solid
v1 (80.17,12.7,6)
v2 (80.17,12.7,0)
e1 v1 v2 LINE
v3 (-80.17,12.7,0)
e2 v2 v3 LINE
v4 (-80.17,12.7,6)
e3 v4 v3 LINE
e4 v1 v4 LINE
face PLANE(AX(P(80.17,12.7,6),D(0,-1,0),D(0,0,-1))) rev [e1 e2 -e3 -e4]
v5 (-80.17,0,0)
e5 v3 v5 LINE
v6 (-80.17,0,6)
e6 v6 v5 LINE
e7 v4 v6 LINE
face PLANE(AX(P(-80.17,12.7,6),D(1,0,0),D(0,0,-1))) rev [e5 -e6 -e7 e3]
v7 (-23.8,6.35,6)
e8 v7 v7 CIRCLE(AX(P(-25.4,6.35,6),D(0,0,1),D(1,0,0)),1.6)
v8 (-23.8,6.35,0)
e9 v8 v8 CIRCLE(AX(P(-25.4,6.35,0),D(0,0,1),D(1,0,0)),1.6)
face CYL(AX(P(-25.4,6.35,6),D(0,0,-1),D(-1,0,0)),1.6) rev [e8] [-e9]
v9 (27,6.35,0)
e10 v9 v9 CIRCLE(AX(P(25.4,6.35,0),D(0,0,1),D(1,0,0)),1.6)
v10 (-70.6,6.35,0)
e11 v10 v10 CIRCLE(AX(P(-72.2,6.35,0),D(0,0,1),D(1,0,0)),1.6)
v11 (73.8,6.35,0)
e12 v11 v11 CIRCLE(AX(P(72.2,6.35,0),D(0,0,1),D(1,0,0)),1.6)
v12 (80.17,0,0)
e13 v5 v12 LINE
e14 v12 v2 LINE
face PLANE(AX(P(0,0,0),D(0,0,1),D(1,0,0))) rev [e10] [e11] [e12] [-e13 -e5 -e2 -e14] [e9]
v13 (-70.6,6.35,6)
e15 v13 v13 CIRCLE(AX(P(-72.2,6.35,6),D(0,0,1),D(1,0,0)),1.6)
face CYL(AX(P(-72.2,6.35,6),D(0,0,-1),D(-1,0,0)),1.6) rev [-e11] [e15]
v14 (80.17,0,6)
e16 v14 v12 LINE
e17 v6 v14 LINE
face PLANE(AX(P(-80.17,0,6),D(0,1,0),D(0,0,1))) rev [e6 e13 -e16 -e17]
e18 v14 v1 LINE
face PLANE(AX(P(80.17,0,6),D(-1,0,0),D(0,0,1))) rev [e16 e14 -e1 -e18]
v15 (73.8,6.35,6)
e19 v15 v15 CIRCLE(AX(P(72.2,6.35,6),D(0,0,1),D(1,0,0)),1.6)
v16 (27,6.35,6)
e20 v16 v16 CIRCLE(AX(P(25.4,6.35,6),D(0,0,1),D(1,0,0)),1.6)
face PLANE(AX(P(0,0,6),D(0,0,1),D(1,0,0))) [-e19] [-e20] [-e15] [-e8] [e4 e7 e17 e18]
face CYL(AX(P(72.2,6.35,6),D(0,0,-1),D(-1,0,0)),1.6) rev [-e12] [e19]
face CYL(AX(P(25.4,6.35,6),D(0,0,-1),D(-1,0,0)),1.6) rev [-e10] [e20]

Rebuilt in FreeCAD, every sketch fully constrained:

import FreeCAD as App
import Part
import Sketcher
from FreeCAD import Vector

doc = App.newDocument("Part")
params = doc.addObject("Spreadsheet::Sheet", "Params")
for row, (alias, value) in enumerate([
    ("sketch1_diameter", "3.2 mm"),
    ("sketch1_height", "12.7 mm"),
    ("sketch1_width", "160.34 mm"),
    ("pad1_length", "6 mm"),
], start=1):
    params.set(f"A{row}", alias)
    params.set(f"B{row}", "=" + value)
    params.setAlias(f"B{row}", alias)

body = doc.addObject("PartDesign::Body", "Body")

# Sketch on XY plane
sketch1 = body.newObject("Sketcher::SketchObject", "Sketch")
sketch1.AttachmentSupport = (doc.getObject("XY_Plane"), [""])
sketch1.MapMode = "FlatFace"
sketch1.addGeometry(Part.LineSegment(Vector(-80.2, 12.7, 0), Vector(-80.2, 0, 0)), False)
sketch1.addGeometry(Part.LineSegment(Vector(-80.2, 0, 0), Vector(80.2, 0, 0)), False)
sketch1.addGeometry(Part.LineSegment(Vector(80.2, 0, 0), Vector(80.2, 12.7, 0)), False)
sketch1.addGeometry(Part.LineSegment(Vector(80.2, 12.7, 0), Vector(-80.2, 12.7, 0)), False)
sketch1.addGeometry(Part.Circle(Vector(-72.2, 6.3, 0), Vector(0, 0, 1), 1.6), False)
sketch1.addGeometry(Part.Circle(Vector(-25.4, 6.3, 0), Vector(0, 0, 1), 1.6), False)
sketch1.addGeometry(Part.Circle(Vector(25.4, 6.3, 0), Vector(0, 0, 1), 1.6), False)
sketch1.addGeometry(Part.Circle(Vector(72.2, 6.3, 0), Vector(0, 0, 1), 1.6), False)
sketch1.addConstraint(Sketcher.Constraint("Coincident", 0, 2, 1, 1))
sketch1.addConstraint(Sketcher.Constraint("Coincident", 1, 2, 2, 1))
sketch1.addConstraint(Sketcher.Constraint("Coincident", 2, 2, 3, 1))
sketch1.addConstraint(Sketcher.Constraint("Coincident", 3, 2, 0, 1))
sketch1.addConstraint(Sketcher.Constraint("Vertical", 0))
sketch1.addConstraint(Sketcher.Constraint("Horizontal", 1))
sketch1.addConstraint(Sketcher.Constraint("Vertical", 2))
sketch1.addConstraint(Sketcher.Constraint("Horizontal", 3))
sketch1.addConstraint(Sketcher.Constraint("Equal", 4, 5))
sketch1.addConstraint(Sketcher.Constraint("Equal", 5, 6))
sketch1.addConstraint(Sketcher.Constraint("Equal", 6, 7))
sketch1.addConstraint(Sketcher.Constraint("Symmetric", 0, 2, 1, 2, -1, 1))
sketch1.addConstraint(Sketcher.Constraint("Symmetric", 5, 3, 6, 3, -2))
sketch1.addConstraint(Sketcher.Constraint("Symmetric", 4, 3, 7, 3, -2))
sketch1.addConstraint(Sketcher.Constraint("Horizontal", 4, 3, 5, 3))
sketch1.addConstraint(Sketcher.Constraint("Diameter", 4, 3.2))
sketch1.addConstraint(Sketcher.Constraint("DistanceY", 0, 2, 0, 1, 12.7))
sketch1.addConstraint(Sketcher.Constraint("DistanceX", 1, 1, 1, 2, 160.34))
sketch1.addConstraint(Sketcher.Constraint("DistanceX", 4, 3, -1, 1, 72.2))
sketch1.addConstraint(Sketcher.Constraint("DistanceX", 5, 3, -1, 1, 25.4))
sketch1.addConstraint(Sketcher.Constraint("DistanceY", -1, 1, 4, 3, 6.35))
sketch1.setExpression("Constraints[15]", "Params.sketch1_diameter")
sketch1.setExpression("Constraints[16]", "Params.sketch1_height")
sketch1.setExpression("Constraints[17]", "Params.sketch1_width")
pad1 = body.newObject("PartDesign::Pad", "Pad")
pad1.Profile = sketch1
pad1.setExpression("Length", "Params.pad1_length")

doc.recompute()
